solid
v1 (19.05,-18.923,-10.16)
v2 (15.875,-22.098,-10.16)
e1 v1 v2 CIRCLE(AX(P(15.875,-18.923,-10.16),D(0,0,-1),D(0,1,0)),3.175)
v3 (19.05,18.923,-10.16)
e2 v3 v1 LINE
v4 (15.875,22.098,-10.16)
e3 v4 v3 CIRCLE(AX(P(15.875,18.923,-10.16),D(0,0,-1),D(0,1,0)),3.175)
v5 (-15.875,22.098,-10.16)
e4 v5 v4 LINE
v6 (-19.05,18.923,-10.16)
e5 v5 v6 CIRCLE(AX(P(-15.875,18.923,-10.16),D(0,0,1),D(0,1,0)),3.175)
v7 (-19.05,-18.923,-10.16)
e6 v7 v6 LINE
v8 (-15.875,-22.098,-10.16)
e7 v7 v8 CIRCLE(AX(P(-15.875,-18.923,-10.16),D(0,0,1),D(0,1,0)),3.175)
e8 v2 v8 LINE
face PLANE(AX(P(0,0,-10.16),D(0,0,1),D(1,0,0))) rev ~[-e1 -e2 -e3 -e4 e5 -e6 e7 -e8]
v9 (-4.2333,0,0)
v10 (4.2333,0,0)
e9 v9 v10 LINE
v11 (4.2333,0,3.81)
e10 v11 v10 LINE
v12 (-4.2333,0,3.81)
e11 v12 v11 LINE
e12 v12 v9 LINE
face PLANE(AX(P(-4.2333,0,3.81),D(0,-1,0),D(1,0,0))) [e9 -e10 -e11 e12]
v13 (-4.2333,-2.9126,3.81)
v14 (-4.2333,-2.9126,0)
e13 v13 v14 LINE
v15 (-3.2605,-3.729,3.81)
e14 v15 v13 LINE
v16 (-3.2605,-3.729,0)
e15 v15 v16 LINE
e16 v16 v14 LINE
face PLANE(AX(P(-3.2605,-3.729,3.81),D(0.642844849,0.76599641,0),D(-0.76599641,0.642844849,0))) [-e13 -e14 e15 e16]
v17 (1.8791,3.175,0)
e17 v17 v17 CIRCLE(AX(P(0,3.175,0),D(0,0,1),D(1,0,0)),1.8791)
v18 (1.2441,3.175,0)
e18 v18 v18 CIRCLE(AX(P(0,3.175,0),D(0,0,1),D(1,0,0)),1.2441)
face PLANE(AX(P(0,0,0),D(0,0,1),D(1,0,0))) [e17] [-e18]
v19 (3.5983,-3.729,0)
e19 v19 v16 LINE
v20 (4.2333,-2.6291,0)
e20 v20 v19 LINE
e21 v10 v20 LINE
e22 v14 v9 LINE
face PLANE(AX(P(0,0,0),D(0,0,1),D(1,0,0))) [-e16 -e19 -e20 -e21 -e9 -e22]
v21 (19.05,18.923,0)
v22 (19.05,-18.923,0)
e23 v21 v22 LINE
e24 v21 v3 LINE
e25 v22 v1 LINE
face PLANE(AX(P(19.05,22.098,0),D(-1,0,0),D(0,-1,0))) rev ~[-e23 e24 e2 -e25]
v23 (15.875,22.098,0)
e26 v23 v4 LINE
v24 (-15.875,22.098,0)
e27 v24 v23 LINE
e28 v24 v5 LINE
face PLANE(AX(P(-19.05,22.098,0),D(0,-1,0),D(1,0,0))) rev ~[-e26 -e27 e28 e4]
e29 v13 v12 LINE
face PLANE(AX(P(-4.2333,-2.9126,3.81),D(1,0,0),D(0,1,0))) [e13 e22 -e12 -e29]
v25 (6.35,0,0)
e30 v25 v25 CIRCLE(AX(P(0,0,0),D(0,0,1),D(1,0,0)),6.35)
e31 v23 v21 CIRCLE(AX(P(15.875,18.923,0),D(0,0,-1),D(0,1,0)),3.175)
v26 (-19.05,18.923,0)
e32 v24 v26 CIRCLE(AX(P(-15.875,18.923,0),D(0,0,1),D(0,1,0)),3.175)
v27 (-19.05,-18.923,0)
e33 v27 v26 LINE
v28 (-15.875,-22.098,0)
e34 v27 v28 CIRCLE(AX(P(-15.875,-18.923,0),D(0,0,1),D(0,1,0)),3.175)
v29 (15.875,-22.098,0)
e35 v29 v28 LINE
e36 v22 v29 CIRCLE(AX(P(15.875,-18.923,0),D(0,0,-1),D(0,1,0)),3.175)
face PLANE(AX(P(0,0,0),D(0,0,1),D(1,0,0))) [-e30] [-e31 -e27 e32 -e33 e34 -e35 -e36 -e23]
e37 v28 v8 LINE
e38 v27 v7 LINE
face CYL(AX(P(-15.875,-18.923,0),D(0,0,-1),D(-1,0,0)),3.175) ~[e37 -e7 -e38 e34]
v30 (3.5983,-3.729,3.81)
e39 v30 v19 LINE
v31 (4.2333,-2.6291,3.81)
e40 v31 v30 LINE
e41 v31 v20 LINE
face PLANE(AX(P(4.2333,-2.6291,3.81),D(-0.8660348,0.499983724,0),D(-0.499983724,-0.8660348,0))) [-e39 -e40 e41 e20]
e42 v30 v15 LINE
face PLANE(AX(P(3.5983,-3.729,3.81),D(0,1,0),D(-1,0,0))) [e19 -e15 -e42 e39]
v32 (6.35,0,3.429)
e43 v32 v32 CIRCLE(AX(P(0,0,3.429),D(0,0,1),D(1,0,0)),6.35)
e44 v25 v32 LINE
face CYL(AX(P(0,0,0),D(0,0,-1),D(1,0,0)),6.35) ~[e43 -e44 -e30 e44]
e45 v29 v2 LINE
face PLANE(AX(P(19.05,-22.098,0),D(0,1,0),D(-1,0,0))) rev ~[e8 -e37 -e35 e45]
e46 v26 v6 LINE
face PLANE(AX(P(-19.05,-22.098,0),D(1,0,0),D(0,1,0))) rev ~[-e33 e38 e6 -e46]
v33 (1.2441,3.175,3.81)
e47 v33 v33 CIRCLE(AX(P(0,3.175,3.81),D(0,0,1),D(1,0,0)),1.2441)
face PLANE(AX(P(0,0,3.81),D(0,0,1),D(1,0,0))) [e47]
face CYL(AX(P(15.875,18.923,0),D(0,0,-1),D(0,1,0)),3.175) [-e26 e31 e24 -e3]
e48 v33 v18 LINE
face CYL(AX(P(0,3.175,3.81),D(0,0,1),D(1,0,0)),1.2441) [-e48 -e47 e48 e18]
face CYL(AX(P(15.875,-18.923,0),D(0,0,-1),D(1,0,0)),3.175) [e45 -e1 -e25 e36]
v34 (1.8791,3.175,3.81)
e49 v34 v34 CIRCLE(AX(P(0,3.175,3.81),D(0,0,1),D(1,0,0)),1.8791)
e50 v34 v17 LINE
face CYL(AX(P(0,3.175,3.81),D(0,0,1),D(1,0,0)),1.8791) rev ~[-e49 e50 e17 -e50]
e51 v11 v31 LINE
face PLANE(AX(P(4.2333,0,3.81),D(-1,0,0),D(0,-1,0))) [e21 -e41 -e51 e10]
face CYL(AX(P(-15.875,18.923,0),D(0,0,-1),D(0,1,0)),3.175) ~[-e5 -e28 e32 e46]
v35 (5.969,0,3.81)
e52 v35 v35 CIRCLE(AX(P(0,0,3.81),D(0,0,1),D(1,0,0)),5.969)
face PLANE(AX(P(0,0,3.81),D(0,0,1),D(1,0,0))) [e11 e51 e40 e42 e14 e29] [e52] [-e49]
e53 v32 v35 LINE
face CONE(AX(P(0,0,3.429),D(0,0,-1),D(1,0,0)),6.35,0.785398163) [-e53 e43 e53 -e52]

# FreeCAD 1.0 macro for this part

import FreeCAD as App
import Part
import Sketcher
Q = App.Units.Quantity


def edges_at(feature, points):
    """Names of the edges that pass closest to the given points."""
    edges = feature.Shape.Edges
    near = lambda p: min(range(len(edges)), key=lambda i: edges[i].distToShape(Part.Vertex(*p))[0])
    return sorted({f"Edge{near(p) + 1}" for p in points})

doc = App.newDocument("Part")
params = doc.addObject("Spreadsheet::Sheet", "Params")
for row, (alias, value) in enumerate([
    ("sketch1_width", "1.5 in"),
    ("sketch1_height", "1.74 in"),
    ("pad1_length", "0.4 in"),
    ("sketch2_diameter", "0.5 in"),
    ("pad2_length", "0.15 in"),
    ("chamfer_size", "0.015 in"),
    ("fillet_radius", "0.125 in"),
    ("sketch3_length", "0.05 in"),
    ("pocket1_length", "0.15 in"),
], start=1):
    params.set(f"A{row}", alias)
    params.set(f"B{row}", "=" + value)
    params.setAlias(f"B{row}", alias)

body = doc.addObject("PartDesign::Body", "Body")

# Sketch on XY plane
sketch1 = body.newObject("Sketcher::SketchObject", "Sketch")
sketch1.AttachmentSupport = (doc.getObject("XY_Plane"), [""])
sketch1.MapMode = "FlatFace"
sketch1.addGeometry([
    Part.LineSegment(App.Vector(19, 22, 0), App.Vector(-19, 22, 0)),
    Part.LineSegment(App.Vector(-19, 22, 0), App.Vector(-19, -22, 0)),
    Part.LineSegment(App.Vector(-19, -22, 0), App.Vector(19, -22, 0)),
    Part.LineSegment(App.Vector(19, -22, 0), App.Vector(19, 22, 0)),
], False)
sketch1.addConstraint([
    Sketcher.Constraint("Coincident", 0, 2, 1, 1),
    Sketcher.Constraint("Coincident", 1, 2, 2, 1),
    Sketcher.Constraint("Coincident", 2, 2, 3, 1),
    Sketcher.Constraint("Coincident", 3, 2, 0, 1),
    Sketcher.Constraint("Horizontal", 0),
    Sketcher.Constraint("Vertical", 1),
    Sketcher.Constraint("Horizontal", 2),
    Sketcher.Constraint("Vertical", 3),
    Sketcher.Constraint("Symmetric", 0, 2, 2, 2, -1, 1),
    Sketcher.Constraint("DistanceX", 0, 2, 0, 1, Q("1.5 in")),
    Sketcher.Constraint("DistanceY", 1, 2, 1, 1, Q("1.74 in")),
])
sketch1.setExpression("Constraints[9]", "Params.sketch1_width")
sketch1.setExpression("Constraints[10]", "Params.sketch1_height")
pad1 = body.newObject("PartDesign::Pad", "Pad")
pad1.Profile = sketch1
pad1.setExpression("Length", "Params.pad1_length")
pad1.Reversed = True

# Sketch on XY plane
sketch2 = body.newObject("Sketcher::SketchObject", "Sketch001")
sketch2.AttachmentSupport = (doc.getObject("XY_Plane"), [""])
sketch2.MapMode = "FlatFace"
sketch2.addGeometry(Part.Circle(App.Vector(0, 0, 0), App.Vector(0, 0, 1), 6), False)
sketch2.addConstraint([
    Sketcher.Constraint("Coincident", 0, 3, -1, 1),
    Sketcher.Constraint("Diameter", 0, Q("0.5 in")),
])
sketch2.setExpression("Constraints[1]", "Params.sketch2_diameter")
pad2 = body.newObject("PartDesign::Pad", "Pad001")
pad2.Profile = sketch2
pad2.setExpression("Length", "Params.pad2_length")
doc.recompute()

chamfer = body.newObject("PartDesign::Chamfer", "Chamfer")
chamfer.Base = (pad2, edges_at(pad2, [(-6.35, 0, 3.81)]))
chamfer.setExpression("Size", "Params.chamfer_size")
doc.recompute()

fillet = body.newObject("PartDesign::Fillet", "Fillet")
fillet.Base = (chamfer, edges_at(chamfer, [
    (19.05, 22.098, -5.08),
    (19.05, -22.098, -5.08),
    (-19.05, -22.098, -5.08),
    (-19.05, 22.098, -5.08),
]))
fillet.setExpression("Radius", "Params.fillet_radius")

# Sketch on XY plane
sketch3 = body.newObject("Sketcher::SketchObject", "Sketch002")
sketch3.AttachmentSupport = (doc.getObject("XY_Plane"), [""])
sketch3.MapMode = "FlatFace"
sketch3.AttachmentOffset = App.Placement(App.Vector(0, 0, 0.15 * 25.4), App.Rotation())
sketch3.addGeometry([
    Part.Circle(App.Vector(0, 3.2, 0), App.Vector(0, 0, 1), 1.9),  # 0
    Part.Circle(App.Vector(0, 3.2, 0), App.Vector(0, 0, 1), 1.2),  # 1
    Part.LineSegment(App.Vector(4.2, 0, 0), App.Vector(-4.2, 0, 0)),  # 2
    Part.LineSegment(App.Vector(-4.2, 0, 0), App.Vector(-4.2, -2.9, 0)),  # 3
    Part.LineSegment(App.Vector(-4.2, -2.9, 0), App.Vector(-3.3, -3.7, 0)),  # 4
    Part.LineSegment(App.Vector(-3.3, -3.7, 0), App.Vector(3.6, -3.7, 0)),  # 5
    Part.LineSegment(App.Vector(3.6, -3.7, 0), App.Vector(4.2, -2.6, 0)),  # 6
    Part.LineSegment(App.Vector(4.2, -2.6, 0), App.Vector(4.2, 0, 0)),  # 7
], False)
sketch3.addConstraint([
    Sketcher.Constraint("Coincident", 2, 2, 3, 1),
    Sketcher.Constraint("Coincident", 3, 2, 4, 1),
    Sketcher.Constraint("Coincident", 4, 2, 5, 1),
    Sketcher.Constraint("Coincident", 5, 2, 6, 1),
    Sketcher.Constraint("Coincident", 6, 2, 7, 1),
    Sketcher.Constraint("Coincident", 7, 2, 2, 1),
    Sketcher.Constraint("Horizontal", 2),
    Sketcher.Constraint("Vertical", 3),
    Sketcher.Constraint("Horizontal", 5),
    Sketcher.Constraint("Vertical", 7),
    Sketcher.Constraint("Coincident", 1, 3, 0, 3),
    Sketcher.Constraint("Symmetric", 2, 2, 7, 2, -1, 1),
    Sketcher.Constraint("PointOnObject", 0, 3, -2),
    Sketcher.Constraint("Equal", 4, 6),
    Sketcher.Constraint("Distance", 4, Q("0.05 in")),
    Sketcher.Constraint("Diameter", 0, Q("3.7582 mm")),
    Sketcher.Constraint("DistanceY", -1, 1, 0, 3, Q("0.125 in")),
    Sketcher.Constraint("Angle", 6, Q("60.001 deg")),
    Sketcher.Constraint("DistanceX", 2, 2, 2, 1, Q("8.4666 mm")),
    Sketcher.Constraint("DistanceY", 4, 2, -1, 1, Q("0.1468 in")),
    Sketcher.Constraint("Diameter", 1, Q("2.4882 mm")),
    Sketcher.Constraint("DistanceX", 5, 1, 5, 2, Q("6.8588 mm")),
])
sketch3.setExpression("Constraints[14]", "Params.sketch3_length")
pocket1 = body.newObject("PartDesign::Pocket", "Pocket")
pocket1.Profile = sketch3
pocket1.setExpression("Length", "Params.pocket1_length")

doc.recompute()
